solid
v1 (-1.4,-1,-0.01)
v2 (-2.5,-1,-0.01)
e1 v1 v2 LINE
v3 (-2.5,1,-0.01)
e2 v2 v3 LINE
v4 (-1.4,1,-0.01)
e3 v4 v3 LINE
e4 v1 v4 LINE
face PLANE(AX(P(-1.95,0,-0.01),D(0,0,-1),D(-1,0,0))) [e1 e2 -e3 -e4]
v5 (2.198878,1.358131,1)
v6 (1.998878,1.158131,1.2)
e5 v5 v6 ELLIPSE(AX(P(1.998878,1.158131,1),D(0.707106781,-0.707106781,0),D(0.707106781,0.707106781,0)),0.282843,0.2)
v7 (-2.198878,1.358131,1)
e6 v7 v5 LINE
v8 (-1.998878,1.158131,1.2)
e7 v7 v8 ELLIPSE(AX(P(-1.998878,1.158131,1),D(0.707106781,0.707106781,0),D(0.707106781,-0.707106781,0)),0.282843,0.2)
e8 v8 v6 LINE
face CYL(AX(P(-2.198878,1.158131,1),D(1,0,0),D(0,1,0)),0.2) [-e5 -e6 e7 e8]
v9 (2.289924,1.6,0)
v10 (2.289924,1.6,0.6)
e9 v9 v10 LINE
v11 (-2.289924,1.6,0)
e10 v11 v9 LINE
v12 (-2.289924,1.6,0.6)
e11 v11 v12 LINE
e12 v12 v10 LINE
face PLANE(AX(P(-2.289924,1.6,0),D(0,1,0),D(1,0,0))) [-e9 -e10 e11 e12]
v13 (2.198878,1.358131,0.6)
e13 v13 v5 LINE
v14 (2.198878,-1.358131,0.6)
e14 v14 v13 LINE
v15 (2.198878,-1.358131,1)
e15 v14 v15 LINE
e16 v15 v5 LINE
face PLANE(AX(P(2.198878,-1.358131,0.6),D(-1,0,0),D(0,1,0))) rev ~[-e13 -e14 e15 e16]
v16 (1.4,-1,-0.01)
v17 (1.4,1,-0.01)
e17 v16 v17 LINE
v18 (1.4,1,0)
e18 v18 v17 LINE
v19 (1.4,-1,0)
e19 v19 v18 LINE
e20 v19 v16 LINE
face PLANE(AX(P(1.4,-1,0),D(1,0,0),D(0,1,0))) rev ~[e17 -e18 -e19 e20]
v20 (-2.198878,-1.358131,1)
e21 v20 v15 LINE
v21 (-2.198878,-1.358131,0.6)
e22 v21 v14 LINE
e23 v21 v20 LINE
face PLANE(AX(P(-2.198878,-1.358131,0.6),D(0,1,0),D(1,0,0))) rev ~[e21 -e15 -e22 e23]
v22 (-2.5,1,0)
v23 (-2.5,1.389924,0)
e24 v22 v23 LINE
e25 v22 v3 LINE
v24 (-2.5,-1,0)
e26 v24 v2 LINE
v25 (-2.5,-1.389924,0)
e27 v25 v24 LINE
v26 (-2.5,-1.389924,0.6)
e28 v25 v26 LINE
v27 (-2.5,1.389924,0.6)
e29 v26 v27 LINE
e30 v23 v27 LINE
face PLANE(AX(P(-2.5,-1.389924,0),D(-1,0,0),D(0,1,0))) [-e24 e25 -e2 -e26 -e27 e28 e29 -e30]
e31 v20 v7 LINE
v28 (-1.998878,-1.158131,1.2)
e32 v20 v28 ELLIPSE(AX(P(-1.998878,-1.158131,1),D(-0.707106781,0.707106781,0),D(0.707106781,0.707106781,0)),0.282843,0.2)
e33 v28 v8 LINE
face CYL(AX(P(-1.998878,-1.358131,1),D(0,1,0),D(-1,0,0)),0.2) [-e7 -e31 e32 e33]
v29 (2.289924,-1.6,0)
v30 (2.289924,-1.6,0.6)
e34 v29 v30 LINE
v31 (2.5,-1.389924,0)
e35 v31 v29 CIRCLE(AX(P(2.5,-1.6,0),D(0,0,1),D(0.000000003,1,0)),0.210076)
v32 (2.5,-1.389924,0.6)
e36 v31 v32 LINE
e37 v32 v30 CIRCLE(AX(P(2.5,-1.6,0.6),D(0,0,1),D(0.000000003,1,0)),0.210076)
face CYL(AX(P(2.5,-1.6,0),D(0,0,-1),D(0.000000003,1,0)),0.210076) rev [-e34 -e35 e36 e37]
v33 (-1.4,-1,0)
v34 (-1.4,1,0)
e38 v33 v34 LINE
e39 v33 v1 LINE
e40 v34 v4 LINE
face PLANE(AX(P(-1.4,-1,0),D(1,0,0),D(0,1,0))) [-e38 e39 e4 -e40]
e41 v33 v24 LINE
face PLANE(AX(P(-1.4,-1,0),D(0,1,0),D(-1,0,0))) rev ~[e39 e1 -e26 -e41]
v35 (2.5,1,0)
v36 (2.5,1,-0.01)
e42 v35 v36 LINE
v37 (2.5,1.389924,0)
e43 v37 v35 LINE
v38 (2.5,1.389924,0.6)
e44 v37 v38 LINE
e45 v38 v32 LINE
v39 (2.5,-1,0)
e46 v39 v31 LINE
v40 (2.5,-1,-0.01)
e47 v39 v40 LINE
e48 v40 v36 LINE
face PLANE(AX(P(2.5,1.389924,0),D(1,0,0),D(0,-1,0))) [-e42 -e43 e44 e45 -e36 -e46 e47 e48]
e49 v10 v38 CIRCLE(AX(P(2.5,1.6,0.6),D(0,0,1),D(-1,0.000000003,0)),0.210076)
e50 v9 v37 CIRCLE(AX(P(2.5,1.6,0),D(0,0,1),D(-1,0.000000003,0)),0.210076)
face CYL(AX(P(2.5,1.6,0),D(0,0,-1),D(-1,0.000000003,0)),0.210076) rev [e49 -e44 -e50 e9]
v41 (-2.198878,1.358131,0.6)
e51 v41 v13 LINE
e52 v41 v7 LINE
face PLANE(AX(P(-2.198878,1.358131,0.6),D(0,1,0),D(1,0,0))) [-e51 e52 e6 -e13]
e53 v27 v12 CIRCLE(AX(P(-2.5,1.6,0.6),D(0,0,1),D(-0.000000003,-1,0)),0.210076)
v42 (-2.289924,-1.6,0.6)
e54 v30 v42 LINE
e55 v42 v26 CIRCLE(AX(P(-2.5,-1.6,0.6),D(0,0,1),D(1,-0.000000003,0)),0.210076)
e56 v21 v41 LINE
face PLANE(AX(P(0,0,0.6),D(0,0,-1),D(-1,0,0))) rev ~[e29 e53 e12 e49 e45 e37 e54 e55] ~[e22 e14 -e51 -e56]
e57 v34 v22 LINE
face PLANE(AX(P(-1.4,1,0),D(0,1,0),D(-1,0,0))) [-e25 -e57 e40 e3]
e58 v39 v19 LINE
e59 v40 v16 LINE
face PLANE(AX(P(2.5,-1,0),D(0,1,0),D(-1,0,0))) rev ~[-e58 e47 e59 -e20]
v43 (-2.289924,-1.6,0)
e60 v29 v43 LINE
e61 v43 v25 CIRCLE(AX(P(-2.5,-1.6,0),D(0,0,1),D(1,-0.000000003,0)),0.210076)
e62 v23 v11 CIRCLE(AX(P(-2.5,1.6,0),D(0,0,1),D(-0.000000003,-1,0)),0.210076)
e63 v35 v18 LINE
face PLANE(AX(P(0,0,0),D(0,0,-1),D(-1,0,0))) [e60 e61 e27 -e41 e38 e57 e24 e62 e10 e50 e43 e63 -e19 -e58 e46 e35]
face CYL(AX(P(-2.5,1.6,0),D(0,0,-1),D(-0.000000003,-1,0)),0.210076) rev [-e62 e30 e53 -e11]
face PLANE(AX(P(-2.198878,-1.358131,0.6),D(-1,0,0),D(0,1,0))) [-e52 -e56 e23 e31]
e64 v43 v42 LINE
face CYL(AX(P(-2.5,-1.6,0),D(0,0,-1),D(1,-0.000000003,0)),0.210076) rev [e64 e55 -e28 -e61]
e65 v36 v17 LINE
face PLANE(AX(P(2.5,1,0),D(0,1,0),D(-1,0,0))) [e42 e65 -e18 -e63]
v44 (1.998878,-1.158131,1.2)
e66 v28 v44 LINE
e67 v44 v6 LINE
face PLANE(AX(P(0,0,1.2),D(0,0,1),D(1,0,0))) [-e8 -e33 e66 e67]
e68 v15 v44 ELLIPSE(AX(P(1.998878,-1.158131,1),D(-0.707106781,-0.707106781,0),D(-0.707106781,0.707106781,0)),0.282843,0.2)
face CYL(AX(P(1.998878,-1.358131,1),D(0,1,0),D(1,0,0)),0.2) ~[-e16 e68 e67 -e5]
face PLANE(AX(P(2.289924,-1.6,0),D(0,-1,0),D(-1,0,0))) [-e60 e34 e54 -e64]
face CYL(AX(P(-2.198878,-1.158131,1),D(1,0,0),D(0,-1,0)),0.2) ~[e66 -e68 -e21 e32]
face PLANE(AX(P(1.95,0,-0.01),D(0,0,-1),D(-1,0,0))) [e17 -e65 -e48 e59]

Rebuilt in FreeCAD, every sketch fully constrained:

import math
import FreeCAD as App
import Part
import Sketcher

V = App.Vector
Q = App.Units.Quantity


def edges_at(feature, points):
    """Names of the edges that pass closest to the given points."""
    edges = feature.Shape.Edges
    near = lambda p: min(range(len(edges)), key=lambda i: edges[i].distToShape(Part.Vertex(*p))[0])
    return sorted({f"Edge{near(p) + 1}" for p in points})


def add_polygon(sketch, points):
    """Adds a closed chain of lines whose ends are joined by coincident constraints."""
    first, n = sketch.GeometryCount, len(points)
    for a, b in zip(points, points[1:] + points[:1]):
        sketch.addGeometry(Part.LineSegment(App.Vector(*a, 0), App.Vector(*b, 0)), False)
    for i in range(n):
        sketch.addConstraint(Sketcher.Constraint("Coincident", first + i, 2, first + (i + 1) % n, 1))

doc = App.newDocument("Part")
body = doc.addObject("PartDesign::Body", "Body")

sketch1 = body.newObject("Sketcher::SketchObject", "Sketch")
sketch1.AttachmentSupport = (doc.getObject("XY_Plane"), [""])
sketch1.MapMode = "FlatFace"
sketch1.addGeometry([
    Part.LineSegment(V(2.29, 1.6, 0), V(-2.29, 1.6, 0)),
    Part.ArcOfCircle(Part.Circle(V(-2.5, 1.6, 0), V(0, 0, 1), 0.21), math.radians(-90), math.radians(0)),
    Part.LineSegment(V(-2.5, 1.39, 0), V(-2.5, -1.39, 0)),
    Part.ArcOfCircle(Part.Circle(V(-2.5, -1.6, 0), V(0, 0, 1), 0.21), math.radians(0), math.radians(90)),
    Part.LineSegment(V(-2.29, -1.6, 0), V(2.29, -1.6, 0)),
    Part.ArcOfCircle(Part.Circle(V(2.5, -1.6, 0), V(0, 0, 1), 0.21), math.radians(90), math.radians(180)),
    Part.LineSegment(V(2.5, -1.39, 0), V(2.5, 1.39, 0)),
    Part.ArcOfCircle(Part.Circle(V(2.5, 1.6, 0), V(0, 0, 1), 0.21), math.radians(180), math.radians(270)),
], False)
sketch1.addConstraint([
    Sketcher.Constraint("Coincident", 0, 2, 1, 2),
    Sketcher.Constraint("Coincident", 1, 1, 2, 1),
    Sketcher.Constraint("Coincident", 2, 2, 3, 2),
    Sketcher.Constraint("Coincident", 3, 1, 4, 1),
    Sketcher.Constraint("Coincident", 4, 2, 5, 2),
    Sketcher.Constraint("Coincident", 5, 1, 6, 1),
    Sketcher.Constraint("Coincident", 6, 2, 7, 2),
    Sketcher.Constraint("Coincident", 7, 1, 0, 1),
    Sketcher.Constraint("Horizontal", 0),
    Sketcher.Constraint("Vertical", 2),
    Sketcher.Constraint("Horizontal", 4),
    Sketcher.Constraint("Vertical", 6),
    Sketcher.Constraint("Equal", 1, 3),
    Sketcher.Constraint("Equal", 3, 5),
    Sketcher.Constraint("Equal", 5, 7),
    Sketcher.Constraint("Symmetric", 1, 3, 5, 3, -1, 1),
    Sketcher.Constraint("Symmetric", 3, 3, 7, 3, -1, 1),
    Sketcher.Constraint("Symmetric", 3, 3, 5, 3, -2),
    Sketcher.Constraint("Horizontal", 7, 3, 0, 2),
    Sketcher.Constraint("Horizontal", 5, 3, 3, 1),
    Sketcher.Constraint("Vertical", 3, 3, 1, 1),
    Sketcher.Constraint("Vertical", 7, 3, 5, 1),
    Sketcher.Constraint("DistanceX", 3, 3, 5, 3, Q("5 mm")),
    Sketcher.Constraint("DistanceY", -1, 1, 1, 3, Q("1.6 mm")),
    Sketcher.Constraint("Radius", 1, Q("0.210076 mm")),
])
pad1 = body.newObject("PartDesign::Pad", "Pad")
pad1.Profile = sketch1
pad1.Length = 0.6

sketch2 = body.newObject("Sketcher::SketchObject", "Sketch001")
sketch2.AttachmentSupport = (doc.getObject("XY_Plane"), [""])
sketch2.MapMode = "FlatFace"
sketch2.AttachmentOffset = App.Placement(V(0, 0, 0.6), App.Rotation())
add_polygon(sketch2, [(-2.2, 1.4), (-2.2, -1.4), (2.2, -1.4), (2.2, 1.4)])
sketch2.addConstraint([
    Sketcher.Constraint("Vertical", 0),
    Sketcher.Constraint("Horizontal", 1),
    Sketcher.Constraint("Vertical", 2),
    Sketcher.Constraint("Horizontal", 3),
    Sketcher.Constraint("Symmetric", 0, 2, 2, 2, -1, 1),
    Sketcher.Constraint("DistanceY", 0, 2, 0, 1, Q("2.716261 mm")),
    Sketcher.Constraint("DistanceX", 1, 1, 1, 2, Q("4.397756 mm")),
])
pad2 = body.newObject("PartDesign::Pad", "Pad001")
pad2.Profile = sketch2
pad2.Length = 0.6

sketch3 = body.newObject("Sketcher::SketchObject", "Sketch002")
sketch3.AttachmentSupport = (doc.getObject("XY_Plane"), [""])
sketch3.MapMode = "FlatFace"
add_polygon(sketch3, [(2.5, 1), (2.5, -1), (1.4, -1), (1.4, 1)])
add_polygon(sketch3, [(-1.4, 1), (-1.4, -1), (-2.5, -1), (-2.5, 1)])
sketch3.addConstraint([
    Sketcher.Constraint("Vertical", 0),
    Sketcher.Constraint("Horizontal", 1),
    Sketcher.Constraint("Vertical", 2),
    Sketcher.Constraint("Horizontal", 3),
    Sketcher.Constraint("Vertical", 4),
    Sketcher.Constraint("Horizontal", 5),
    Sketcher.Constraint("Vertical", 6),
    Sketcher.Constraint("Horizontal", 7),
    Sketcher.Constraint("Symmetric", 2, 2, 4, 2, -1, 1),
    Sketcher.Constraint("Symmetric", 0, 2, 6, 2, -1, 1),
    Sketcher.Constraint("Horizontal", 1, 2, 4, 2),
    Sketcher.Constraint("DistanceY", 0, 2, 0, 1, Q("2 mm")),
    Sketcher.Constraint("DistanceX", 1, 2, 1, 1, Q("1.1 mm")),
    Sketcher.Constraint("DistanceX", 5, 2, 0, 2, Q("5 mm")),
])
pad3 = body.newObject("PartDesign::Pad", "Pad002")
pad3.Profile = sketch3
pad3.Length = 0.01
pad3.Reversed = True
doc.recompute()

fillet = body.newObject("PartDesign::Fillet", "Fillet")
fillet.Base = (pad3, edges_at(pad3, [
    (2.199, 0, 1.2),
    (0, 1.358, 1.2),
    (-2.199, 0, 1.2),
    (0, -1.358, 1.2),
]))
fillet.Radius = 0.2

doc.recompute()
